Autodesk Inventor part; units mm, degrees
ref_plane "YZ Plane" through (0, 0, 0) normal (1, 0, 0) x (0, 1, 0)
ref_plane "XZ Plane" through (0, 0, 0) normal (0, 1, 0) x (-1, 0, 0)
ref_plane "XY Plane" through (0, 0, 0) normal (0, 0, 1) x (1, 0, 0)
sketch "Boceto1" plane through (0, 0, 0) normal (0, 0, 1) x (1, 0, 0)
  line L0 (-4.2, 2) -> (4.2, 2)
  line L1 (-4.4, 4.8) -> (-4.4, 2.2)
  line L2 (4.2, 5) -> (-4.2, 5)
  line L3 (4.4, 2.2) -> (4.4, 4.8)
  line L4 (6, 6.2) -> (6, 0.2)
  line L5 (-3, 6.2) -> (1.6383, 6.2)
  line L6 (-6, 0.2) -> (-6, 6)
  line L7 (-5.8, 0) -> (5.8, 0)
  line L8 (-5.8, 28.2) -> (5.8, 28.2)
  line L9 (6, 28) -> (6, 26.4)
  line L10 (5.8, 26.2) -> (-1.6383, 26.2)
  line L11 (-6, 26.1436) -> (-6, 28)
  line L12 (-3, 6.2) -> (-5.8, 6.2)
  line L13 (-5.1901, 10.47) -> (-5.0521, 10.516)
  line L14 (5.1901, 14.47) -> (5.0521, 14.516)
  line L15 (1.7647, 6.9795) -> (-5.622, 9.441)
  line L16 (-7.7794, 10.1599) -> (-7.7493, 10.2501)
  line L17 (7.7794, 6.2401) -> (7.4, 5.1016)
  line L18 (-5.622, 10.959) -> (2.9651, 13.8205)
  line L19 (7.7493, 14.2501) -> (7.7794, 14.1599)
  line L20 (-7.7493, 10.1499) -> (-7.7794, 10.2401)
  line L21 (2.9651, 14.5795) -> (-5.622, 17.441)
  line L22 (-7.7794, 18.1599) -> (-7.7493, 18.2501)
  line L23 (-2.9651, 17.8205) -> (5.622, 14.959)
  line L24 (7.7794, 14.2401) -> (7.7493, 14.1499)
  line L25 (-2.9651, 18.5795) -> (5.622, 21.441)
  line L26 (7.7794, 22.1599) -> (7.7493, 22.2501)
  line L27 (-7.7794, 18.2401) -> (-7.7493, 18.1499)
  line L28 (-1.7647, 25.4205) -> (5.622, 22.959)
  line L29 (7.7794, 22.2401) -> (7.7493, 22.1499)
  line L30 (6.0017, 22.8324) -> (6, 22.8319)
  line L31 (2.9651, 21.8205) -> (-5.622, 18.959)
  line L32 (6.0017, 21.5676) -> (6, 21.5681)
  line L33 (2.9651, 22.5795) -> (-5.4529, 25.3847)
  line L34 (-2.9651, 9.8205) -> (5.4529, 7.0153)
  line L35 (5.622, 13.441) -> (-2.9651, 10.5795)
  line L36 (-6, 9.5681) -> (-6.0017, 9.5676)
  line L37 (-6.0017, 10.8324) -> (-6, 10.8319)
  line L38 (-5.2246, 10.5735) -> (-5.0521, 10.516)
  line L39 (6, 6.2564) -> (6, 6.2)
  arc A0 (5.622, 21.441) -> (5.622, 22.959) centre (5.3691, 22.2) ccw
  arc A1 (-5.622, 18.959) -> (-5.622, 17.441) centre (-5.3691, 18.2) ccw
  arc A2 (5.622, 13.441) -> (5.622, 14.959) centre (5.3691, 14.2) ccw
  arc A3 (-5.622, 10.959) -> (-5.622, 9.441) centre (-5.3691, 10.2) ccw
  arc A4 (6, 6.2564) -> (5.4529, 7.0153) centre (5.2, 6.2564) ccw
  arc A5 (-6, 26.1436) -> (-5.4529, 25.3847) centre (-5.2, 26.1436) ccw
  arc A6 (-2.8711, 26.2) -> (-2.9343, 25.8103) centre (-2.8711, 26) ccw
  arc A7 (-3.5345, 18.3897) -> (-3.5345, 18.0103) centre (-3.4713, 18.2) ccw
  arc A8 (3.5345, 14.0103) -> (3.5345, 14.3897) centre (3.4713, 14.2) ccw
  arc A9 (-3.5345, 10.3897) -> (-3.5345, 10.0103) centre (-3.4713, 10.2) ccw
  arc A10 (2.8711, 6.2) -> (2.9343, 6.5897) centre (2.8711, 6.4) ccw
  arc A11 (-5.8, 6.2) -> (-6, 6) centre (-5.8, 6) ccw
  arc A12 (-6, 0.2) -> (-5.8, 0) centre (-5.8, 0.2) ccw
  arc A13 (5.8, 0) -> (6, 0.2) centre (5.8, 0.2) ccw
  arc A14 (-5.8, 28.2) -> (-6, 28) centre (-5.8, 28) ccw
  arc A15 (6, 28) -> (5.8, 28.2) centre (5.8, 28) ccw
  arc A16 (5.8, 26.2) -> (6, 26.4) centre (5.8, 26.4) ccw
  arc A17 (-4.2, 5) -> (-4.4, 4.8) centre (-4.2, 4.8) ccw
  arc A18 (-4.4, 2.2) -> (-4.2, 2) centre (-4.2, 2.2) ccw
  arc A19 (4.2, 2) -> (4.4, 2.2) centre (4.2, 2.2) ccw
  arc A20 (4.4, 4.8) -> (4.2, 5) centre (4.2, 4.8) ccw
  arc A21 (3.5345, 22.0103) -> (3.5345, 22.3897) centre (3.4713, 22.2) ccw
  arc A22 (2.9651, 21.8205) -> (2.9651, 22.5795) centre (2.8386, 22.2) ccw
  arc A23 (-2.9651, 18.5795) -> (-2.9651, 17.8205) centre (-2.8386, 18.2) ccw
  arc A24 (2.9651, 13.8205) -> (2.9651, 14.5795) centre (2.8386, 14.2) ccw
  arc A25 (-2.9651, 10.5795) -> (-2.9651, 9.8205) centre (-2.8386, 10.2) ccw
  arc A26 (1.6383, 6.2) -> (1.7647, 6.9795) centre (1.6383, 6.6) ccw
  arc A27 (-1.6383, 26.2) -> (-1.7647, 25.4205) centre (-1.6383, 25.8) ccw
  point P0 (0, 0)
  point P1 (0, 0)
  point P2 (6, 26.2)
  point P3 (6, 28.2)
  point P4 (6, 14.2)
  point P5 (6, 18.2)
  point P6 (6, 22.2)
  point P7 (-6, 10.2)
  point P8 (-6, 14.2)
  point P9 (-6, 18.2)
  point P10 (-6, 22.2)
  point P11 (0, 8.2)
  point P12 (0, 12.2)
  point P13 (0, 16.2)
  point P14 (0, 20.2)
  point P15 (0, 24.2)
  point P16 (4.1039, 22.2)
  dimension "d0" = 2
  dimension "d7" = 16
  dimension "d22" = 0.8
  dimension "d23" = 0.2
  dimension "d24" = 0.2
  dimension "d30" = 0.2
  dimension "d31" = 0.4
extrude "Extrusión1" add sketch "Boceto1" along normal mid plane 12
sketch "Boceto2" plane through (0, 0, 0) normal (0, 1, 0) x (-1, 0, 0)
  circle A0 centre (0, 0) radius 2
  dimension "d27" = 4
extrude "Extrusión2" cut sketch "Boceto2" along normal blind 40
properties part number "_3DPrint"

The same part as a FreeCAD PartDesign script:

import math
import FreeCAD as App
import Part
import Sketcher
from FreeCAD import Vector
Q = App.Units.Quantity

doc = App.newDocument("Part")
body = doc.addObject("PartDesign::Body", "Body")

sketch1 = body.newObject("Sketcher::SketchObject", "Sketch")
sketch1.AttachmentSupport = (doc.getObject("XY_Plane"), [""])
sketch1.MapMode = "FlatFace"
sketch1.addGeometry([
    Part.LineSegment(Vector(6, 0.2, 0), Vector(6, 6.26, 0)),
    Part.ArcOfCircle(Part.Circle(Vector(5.2, 6.26, 0), Vector(0, 0, 1), 0.8), math.radians(0), math.radians(72)),
    Part.LineSegment(Vector(5.45, 7.02, 0), Vector(-2.97, 9.82, 0)),
    Part.ArcOfCircle(Part.Circle(Vector(-2.84, 10.2, 0), Vector(0, 0, 1), 0.4), math.radians(108), math.radians(252)),
    Part.LineSegment(Vector(-2.97, 10.58, 0), Vector(5.62, 13.44, 0)),
    Part.ArcOfCircle(Part.Circle(Vector(5.37, 14.2, 0), Vector(0, 0, 1), 0.8), math.radians(-72), math.radians(72)),
    Part.LineSegment(Vector(5.62, 14.96, 0), Vector(-2.97, 17.82, 0)),
    Part.ArcOfCircle(Part.Circle(Vector(-2.84, 18.2, 0), Vector(0, 0, 1), 0.4), math.radians(108), math.radians(252)),
    Part.LineSegment(Vector(-2.97, 18.58, 0), Vector(5.62, 21.44, 0)),
    Part.ArcOfCircle(Part.Circle(Vector(5.37, 22.2, 0), Vector(0, 0, 1), 0.8), math.radians(-72), math.radians(72)),
    Part.LineSegment(Vector(5.62, 22.96, 0), Vector(-1.76, 25.42, 0)),
    Part.ArcOfCircle(Part.Circle(Vector(-1.64, 25.8, 0), Vector(0, 0, 1), 0.4), math.radians(90), math.radians(252)),
    Part.LineSegment(Vector(-1.64, 26.2, 0), Vector(5.8, 26.2, 0)),
    Part.ArcOfCircle(Part.Circle(Vector(5.8, 26.4, 0), Vector(0, 0, 1), 0.2), math.radians(-90), math.radians(0)),
    Part.LineSegment(Vector(6, 26.4, 0), Vector(6, 28, 0)),
    Part.ArcOfCircle(Part.Circle(Vector(5.8, 28, 0), Vector(0, 0, 1), 0.2), math.radians(0), math.radians(90)),
    Part.LineSegment(Vector(5.8, 28.2, 0), Vector(-5.8, 28.2, 0)),
    Part.ArcOfCircle(Part.Circle(Vector(-5.8, 28, 0), Vector(0, 0, 1), 0.2), math.radians(90), math.radians(180)),
    Part.LineSegment(Vector(-6, 28, 0), Vector(-6, 26.14, 0)),
    Part.ArcOfCircle(Part.Circle(Vector(-5.2, 26.14, 0), Vector(0, 0, 1), 0.8), math.radians(180), math.radians(252)),
    Part.LineSegment(Vector(-5.45, 25.38, 0), Vector(2.97, 22.58, 0)),
    Part.ArcOfCircle(Part.Circle(Vector(2.84, 22.2, 0), Vector(0, 0, 1), 0.4), math.radians(-72), math.radians(72)),
    Part.LineSegment(Vector(2.97, 21.82, 0), Vector(-5.62, 18.96, 0)),
    Part.ArcOfCircle(Part.Circle(Vector(-5.37, 18.2, 0), Vector(0, 0, 1), 0.8), math.radians(108), math.radians(252)),
    Part.LineSegment(Vector(-5.62, 17.44, 0), Vector(2.97, 14.58, 0)),
    Part.ArcOfCircle(Part.Circle(Vector(2.84, 14.2, 0), Vector(0, 0, 1), 0.4), math.radians(-72), math.radians(72)),
    Part.LineSegment(Vector(2.97, 13.82, 0), Vector(-5.62, 10.96, 0)),
    Part.ArcOfCircle(Part.Circle(Vector(-5.37, 10.2, 0), Vector(0, 0, 1), 0.8), math.radians(108), math.radians(252)),
    Part.LineSegment(Vector(-5.62, 9.44, 0), Vector(1.76, 6.98, 0)),
    Part.ArcOfCircle(Part.Circle(Vector(1.64, 6.6, 0), Vector(0, 0, 1), 0.4), math.radians(-90), math.radians(72)),
    Part.LineSegment(Vector(1.64, 6.2, 0), Vector(-5.8, 6.2, 0)),
    Part.ArcOfCircle(Part.Circle(Vector(-5.8, 6, 0), Vector(0, 0, 1), 0.2), math.radians(90), math.radians(180)),
    Part.LineSegment(Vector(-6, 6, 0), Vector(-6, 0.2, 0)),
    Part.ArcOfCircle(Part.Circle(Vector(-5.8, 0.2, 0), Vector(0, 0, 1), 0.2), math.radians(180), math.radians(270)),
    Part.LineSegment(Vector(-5.8, 0, 0), Vector(5.8, 0, 0)),
    Part.ArcOfCircle(Part.Circle(Vector(5.8, 0.2, 0), Vector(0, 0, 1), 0.2), math.radians(-90), math.radians(0)),
    Part.LineSegment(Vector(4.2, 2, 0), Vector(-4.2, 2, 0)),
    Part.ArcOfCircle(Part.Circle(Vector(-4.2, 2.2, 0), Vector(0, 0, 1), 0.2), math.radians(180), math.radians(270)),
    Part.LineSegment(Vector(-4.4, 2.2, 0), Vector(-4.4, 4.8, 0)),
    Part.ArcOfCircle(Part.Circle(Vector(-4.2, 4.8, 0), Vector(0, 0, 1), 0.2), math.radians(90), math.radians(180)),
    Part.LineSegment(Vector(-4.2, 5, 0), Vector(4.2, 5, 0)),
    Part.ArcOfCircle(Part.Circle(Vector(4.2, 4.8, 0), Vector(0, 0, 1), 0.2), math.radians(0), math.radians(90)),
    Part.LineSegment(Vector(4.4, 4.8, 0), Vector(4.4, 2.2, 0)),
    Part.ArcOfCircle(Part.Circle(Vector(4.2, 2.2, 0), Vector(0, 0, 1), 0.2), math.radians(-90), math.radians(0)),
], False)
sketch1.addConstraint([
    Sketcher.Constraint("Tangent", 0, 2, 1, 1),
    Sketcher.Constraint("Tangent", 1, 2, 2, 1),
    Sketcher.Constraint("Tangent", 2, 2, 3, 2),
    Sketcher.Constraint("Tangent", 3, 1, 4, 1),
    Sketcher.Constraint("Tangent", 4, 2, 5, 1),
    Sketcher.Constraint("Tangent", 5, 2, 6, 1),
    Sketcher.Constraint("Tangent", 6, 2, 7, 2),
    Sketcher.Constraint("Tangent", 7, 1, 8, 1),
    Sketcher.Constraint("Tangent", 8, 2, 9, 1),
    Sketcher.Constraint("Tangent", 9, 2, 10, 1),
    Sketcher.Constraint("Tangent", 10, 2, 11, 2),
    Sketcher.Constraint("Tangent", 11, 1, 12, 1),
    Sketcher.Constraint("Tangent", 12, 2, 13, 1),
    Sketcher.Constraint("Tangent", 13, 2, 14, 1),
    Sketcher.Constraint("Tangent", 14, 2, 15, 1),
    Sketcher.Constraint("Tangent", 15, 2, 16, 1),
    Sketcher.Constraint("Tangent", 16, 2, 17, 1),
    Sketcher.Constraint("Tangent", 17, 2, 18, 1),
    Sketcher.Constraint("Tangent", 18, 2, 19, 1),
    Sketcher.Constraint("Tangent", 19, 2, 20, 1),
    Sketcher.Constraint("Tangent", 20, 2, 21, 2),
    Sketcher.Constraint("Tangent", 21, 1, 22, 1),
    Sketcher.Constraint("Tangent", 22, 2, 23, 1),
    Sketcher.Constraint("Tangent", 23, 2, 24, 1),
    Sketcher.Constraint("Tangent", 24, 2, 25, 2),
    Sketcher.Constraint("Tangent", 25, 1, 26, 1),
    Sketcher.Constraint("Tangent", 26, 2, 27, 1),
    Sketcher.Constraint("Tangent", 27, 2, 28, 1),
    Sketcher.Constraint("Tangent", 28, 2, 29, 2),
    Sketcher.Constraint("Tangent", 29, 1, 30, 1),
    Sketcher.Constraint("Tangent", 30, 2, 31, 1),
    Sketcher.Constraint("Tangent", 31, 2, 32, 1),
    Sketcher.Constraint("Tangent", 32, 2, 33, 1),
    Sketcher.Constraint("Tangent", 33, 2, 34, 1),
    Sketcher.Constraint("Tangent", 34, 2, 35, 1),
    Sketcher.Constraint("Tangent", 35, 2, 0, 1),
    Sketcher.Constraint("Tangent", 36, 2, 37, 2),
    Sketcher.Constraint("Tangent", 37, 1, 38, 1),
    Sketcher.Constraint("Tangent", 38, 2, 39, 2),
    Sketcher.Constraint("Tangent", 39, 1, 40, 1),
    Sketcher.Constraint("Tangent", 40, 2, 41, 2),
    Sketcher.Constraint("Tangent", 41, 1, 42, 1),
    Sketcher.Constraint("Tangent", 42, 2, 43, 2),
    Sketcher.Constraint("Tangent", 43, 1, 36, 1),
    Sketcher.Constraint("Vertical", 0),
    Sketcher.Constraint("Horizontal", 12),
    Sketcher.Constraint("Vertical", 14),
    Sketcher.Constraint("Horizontal", 16),
    Sketcher.Constraint("Vertical", 18),
    Sketcher.Constraint("Horizontal", 30),
    Sketcher.Constraint("Vertical", 32),
    Sketcher.Constraint("Horizontal", 34),
    Sketcher.Constraint("Horizontal", 36),
    Sketcher.Constraint("Vertical", 38),
    Sketcher.Constraint("Horizontal", 40),
    Sketcher.Constraint("Vertical", 42),
    Sketcher.Constraint("Equal", 1, 5),
    Sketcher.Constraint("Equal", 3, 7),
    Sketcher.Constraint("Equal", 5, 9),
    Sketcher.Constraint("Equal", 7, 11),
    Sketcher.Constraint("Equal", 13, 15),
    Sketcher.Constraint("Equal", 15, 17),
    Sketcher.Constraint("Equal", 9, 19),
    Sketcher.Constraint("Equal", 11, 21),
    Sketcher.Constraint("Equal", 19, 23),
    Sketcher.Constraint("Equal", 21, 25),
    Sketcher.Constraint("Equal", 23, 27),
    Sketcher.Constraint("Equal", 25, 29),
    Sketcher.Constraint("Equal", 17, 31),
    Sketcher.Constraint("Equal", 31, 33),
    Sketcher.Constraint("Equal", 33, 35),
    Sketcher.Constraint("Equal", 35, 37),
    Sketcher.Constraint("Equal", 37, 39),
    Sketcher.Constraint("Equal", 39, 41),
    Sketcher.Constraint("Equal", 41, 43),
    Sketcher.Constraint("Symmetric", 33, 2, 34, 2, -1, 1),
    Sketcher.Constraint("Parallel", 2, 6),
    Sketcher.Constraint("Parallel", 4, 8),
    Sketcher.Constraint("Parallel", 6, 10),
    Sketcher.Constraint("Parallel", 10, 20),
    Sketcher.Constraint("Parallel", 8, 22),
    Sketcher.Constraint("Parallel", 20, 24),
    Sketcher.Constraint("Parallel", 22, 26),
    Sketcher.Constraint("Parallel", 24, 28),
    Sketcher.Constraint("Horizontal", 9, 3, 21, 3),
    Sketcher.Constraint("Horizontal", 7, 3, 23, 3),
    Sketcher.Constraint("Horizontal", 5, 3, 25, 3),
    Sketcher.Constraint("Horizontal", 3, 3, 27, 3),
    Sketcher.Constraint("Vertical", 3, 3, 7, 3),
    Sketcher.Constraint("Vertical", 5, 3, 9, 3),
    Sketcher.Constraint("Vertical", 17, 3, 31, 3),
    Sketcher.Constraint("Vertical", 15, 3, 35, 3),
    Sketcher.Constraint("Vertical", 2, 2, 3, 1),
    Sketcher.Constraint("Equal", 12, 30),
    Sketcher.Constraint("Equal", 2, 20),
    Sketcher.Constraint("Radius", 1, 0.8),
    Sketcher.Constraint("Radius", 3, 0.4),
    Sketcher.Constraint("Radius", 13, 0.2),
    Sketcher.Constraint("DistanceY", -1, 1, 36, 2, 2.0),
    Sketcher.Constraint("DistanceX", 16, 2, 16, 1, 11.6),
    Sketcher.Constraint("DistanceX", 36, 2, 36, 1, 8.4),
    Sketcher.Constraint("DistanceY", 14, 1, 14, 2, 1.6),
    Sketcher.Constraint("DistanceY", 32, 2, 32, 1, 5.8),
    Sketcher.Constraint("DistanceY", 38, 1, 38, 2, 2.6),
    Sketcher.Constraint("DistanceY", -1, 1, 15, 3, 28.0),
    Sketcher.Constraint("DistanceY", -1, 1, 3, 3, 10.2),
    Sketcher.Constraint("DistanceX", 37, 3, -1, 1, 4.2),
    Sketcher.Constraint("Angle", 2, Q("161.57 deg")),
    Sketcher.Constraint("Distance", 2, 8.873),
])
pad1 = body.newObject("PartDesign::Pad", "Pad")
pad1.Profile = sketch1
pad1.Length = 12
pad1.Midplane = True

sketch2 = body.newObject("Sketcher::SketchObject", "Sketch001")
sketch2.AttachmentSupport = (doc.getObject("XZ_Plane"), [""])
sketch2.MapMode = "FlatFace"
sketch2.addGeometry(Part.Circle(Vector(0, 0, 0), Vector(0, 0, 1), 2), False)
sketch2.addConstraint([
    Sketcher.Constraint("Coincident", 0, 3, -1, 1),
    Sketcher.Constraint("Diameter", 0, 4.0),
])
pocket1 = body.newObject("PartDesign::Pocket", "Pocket")
pocket1.Profile = sketch2
pocket1.Length = 40

doc.recompute()
